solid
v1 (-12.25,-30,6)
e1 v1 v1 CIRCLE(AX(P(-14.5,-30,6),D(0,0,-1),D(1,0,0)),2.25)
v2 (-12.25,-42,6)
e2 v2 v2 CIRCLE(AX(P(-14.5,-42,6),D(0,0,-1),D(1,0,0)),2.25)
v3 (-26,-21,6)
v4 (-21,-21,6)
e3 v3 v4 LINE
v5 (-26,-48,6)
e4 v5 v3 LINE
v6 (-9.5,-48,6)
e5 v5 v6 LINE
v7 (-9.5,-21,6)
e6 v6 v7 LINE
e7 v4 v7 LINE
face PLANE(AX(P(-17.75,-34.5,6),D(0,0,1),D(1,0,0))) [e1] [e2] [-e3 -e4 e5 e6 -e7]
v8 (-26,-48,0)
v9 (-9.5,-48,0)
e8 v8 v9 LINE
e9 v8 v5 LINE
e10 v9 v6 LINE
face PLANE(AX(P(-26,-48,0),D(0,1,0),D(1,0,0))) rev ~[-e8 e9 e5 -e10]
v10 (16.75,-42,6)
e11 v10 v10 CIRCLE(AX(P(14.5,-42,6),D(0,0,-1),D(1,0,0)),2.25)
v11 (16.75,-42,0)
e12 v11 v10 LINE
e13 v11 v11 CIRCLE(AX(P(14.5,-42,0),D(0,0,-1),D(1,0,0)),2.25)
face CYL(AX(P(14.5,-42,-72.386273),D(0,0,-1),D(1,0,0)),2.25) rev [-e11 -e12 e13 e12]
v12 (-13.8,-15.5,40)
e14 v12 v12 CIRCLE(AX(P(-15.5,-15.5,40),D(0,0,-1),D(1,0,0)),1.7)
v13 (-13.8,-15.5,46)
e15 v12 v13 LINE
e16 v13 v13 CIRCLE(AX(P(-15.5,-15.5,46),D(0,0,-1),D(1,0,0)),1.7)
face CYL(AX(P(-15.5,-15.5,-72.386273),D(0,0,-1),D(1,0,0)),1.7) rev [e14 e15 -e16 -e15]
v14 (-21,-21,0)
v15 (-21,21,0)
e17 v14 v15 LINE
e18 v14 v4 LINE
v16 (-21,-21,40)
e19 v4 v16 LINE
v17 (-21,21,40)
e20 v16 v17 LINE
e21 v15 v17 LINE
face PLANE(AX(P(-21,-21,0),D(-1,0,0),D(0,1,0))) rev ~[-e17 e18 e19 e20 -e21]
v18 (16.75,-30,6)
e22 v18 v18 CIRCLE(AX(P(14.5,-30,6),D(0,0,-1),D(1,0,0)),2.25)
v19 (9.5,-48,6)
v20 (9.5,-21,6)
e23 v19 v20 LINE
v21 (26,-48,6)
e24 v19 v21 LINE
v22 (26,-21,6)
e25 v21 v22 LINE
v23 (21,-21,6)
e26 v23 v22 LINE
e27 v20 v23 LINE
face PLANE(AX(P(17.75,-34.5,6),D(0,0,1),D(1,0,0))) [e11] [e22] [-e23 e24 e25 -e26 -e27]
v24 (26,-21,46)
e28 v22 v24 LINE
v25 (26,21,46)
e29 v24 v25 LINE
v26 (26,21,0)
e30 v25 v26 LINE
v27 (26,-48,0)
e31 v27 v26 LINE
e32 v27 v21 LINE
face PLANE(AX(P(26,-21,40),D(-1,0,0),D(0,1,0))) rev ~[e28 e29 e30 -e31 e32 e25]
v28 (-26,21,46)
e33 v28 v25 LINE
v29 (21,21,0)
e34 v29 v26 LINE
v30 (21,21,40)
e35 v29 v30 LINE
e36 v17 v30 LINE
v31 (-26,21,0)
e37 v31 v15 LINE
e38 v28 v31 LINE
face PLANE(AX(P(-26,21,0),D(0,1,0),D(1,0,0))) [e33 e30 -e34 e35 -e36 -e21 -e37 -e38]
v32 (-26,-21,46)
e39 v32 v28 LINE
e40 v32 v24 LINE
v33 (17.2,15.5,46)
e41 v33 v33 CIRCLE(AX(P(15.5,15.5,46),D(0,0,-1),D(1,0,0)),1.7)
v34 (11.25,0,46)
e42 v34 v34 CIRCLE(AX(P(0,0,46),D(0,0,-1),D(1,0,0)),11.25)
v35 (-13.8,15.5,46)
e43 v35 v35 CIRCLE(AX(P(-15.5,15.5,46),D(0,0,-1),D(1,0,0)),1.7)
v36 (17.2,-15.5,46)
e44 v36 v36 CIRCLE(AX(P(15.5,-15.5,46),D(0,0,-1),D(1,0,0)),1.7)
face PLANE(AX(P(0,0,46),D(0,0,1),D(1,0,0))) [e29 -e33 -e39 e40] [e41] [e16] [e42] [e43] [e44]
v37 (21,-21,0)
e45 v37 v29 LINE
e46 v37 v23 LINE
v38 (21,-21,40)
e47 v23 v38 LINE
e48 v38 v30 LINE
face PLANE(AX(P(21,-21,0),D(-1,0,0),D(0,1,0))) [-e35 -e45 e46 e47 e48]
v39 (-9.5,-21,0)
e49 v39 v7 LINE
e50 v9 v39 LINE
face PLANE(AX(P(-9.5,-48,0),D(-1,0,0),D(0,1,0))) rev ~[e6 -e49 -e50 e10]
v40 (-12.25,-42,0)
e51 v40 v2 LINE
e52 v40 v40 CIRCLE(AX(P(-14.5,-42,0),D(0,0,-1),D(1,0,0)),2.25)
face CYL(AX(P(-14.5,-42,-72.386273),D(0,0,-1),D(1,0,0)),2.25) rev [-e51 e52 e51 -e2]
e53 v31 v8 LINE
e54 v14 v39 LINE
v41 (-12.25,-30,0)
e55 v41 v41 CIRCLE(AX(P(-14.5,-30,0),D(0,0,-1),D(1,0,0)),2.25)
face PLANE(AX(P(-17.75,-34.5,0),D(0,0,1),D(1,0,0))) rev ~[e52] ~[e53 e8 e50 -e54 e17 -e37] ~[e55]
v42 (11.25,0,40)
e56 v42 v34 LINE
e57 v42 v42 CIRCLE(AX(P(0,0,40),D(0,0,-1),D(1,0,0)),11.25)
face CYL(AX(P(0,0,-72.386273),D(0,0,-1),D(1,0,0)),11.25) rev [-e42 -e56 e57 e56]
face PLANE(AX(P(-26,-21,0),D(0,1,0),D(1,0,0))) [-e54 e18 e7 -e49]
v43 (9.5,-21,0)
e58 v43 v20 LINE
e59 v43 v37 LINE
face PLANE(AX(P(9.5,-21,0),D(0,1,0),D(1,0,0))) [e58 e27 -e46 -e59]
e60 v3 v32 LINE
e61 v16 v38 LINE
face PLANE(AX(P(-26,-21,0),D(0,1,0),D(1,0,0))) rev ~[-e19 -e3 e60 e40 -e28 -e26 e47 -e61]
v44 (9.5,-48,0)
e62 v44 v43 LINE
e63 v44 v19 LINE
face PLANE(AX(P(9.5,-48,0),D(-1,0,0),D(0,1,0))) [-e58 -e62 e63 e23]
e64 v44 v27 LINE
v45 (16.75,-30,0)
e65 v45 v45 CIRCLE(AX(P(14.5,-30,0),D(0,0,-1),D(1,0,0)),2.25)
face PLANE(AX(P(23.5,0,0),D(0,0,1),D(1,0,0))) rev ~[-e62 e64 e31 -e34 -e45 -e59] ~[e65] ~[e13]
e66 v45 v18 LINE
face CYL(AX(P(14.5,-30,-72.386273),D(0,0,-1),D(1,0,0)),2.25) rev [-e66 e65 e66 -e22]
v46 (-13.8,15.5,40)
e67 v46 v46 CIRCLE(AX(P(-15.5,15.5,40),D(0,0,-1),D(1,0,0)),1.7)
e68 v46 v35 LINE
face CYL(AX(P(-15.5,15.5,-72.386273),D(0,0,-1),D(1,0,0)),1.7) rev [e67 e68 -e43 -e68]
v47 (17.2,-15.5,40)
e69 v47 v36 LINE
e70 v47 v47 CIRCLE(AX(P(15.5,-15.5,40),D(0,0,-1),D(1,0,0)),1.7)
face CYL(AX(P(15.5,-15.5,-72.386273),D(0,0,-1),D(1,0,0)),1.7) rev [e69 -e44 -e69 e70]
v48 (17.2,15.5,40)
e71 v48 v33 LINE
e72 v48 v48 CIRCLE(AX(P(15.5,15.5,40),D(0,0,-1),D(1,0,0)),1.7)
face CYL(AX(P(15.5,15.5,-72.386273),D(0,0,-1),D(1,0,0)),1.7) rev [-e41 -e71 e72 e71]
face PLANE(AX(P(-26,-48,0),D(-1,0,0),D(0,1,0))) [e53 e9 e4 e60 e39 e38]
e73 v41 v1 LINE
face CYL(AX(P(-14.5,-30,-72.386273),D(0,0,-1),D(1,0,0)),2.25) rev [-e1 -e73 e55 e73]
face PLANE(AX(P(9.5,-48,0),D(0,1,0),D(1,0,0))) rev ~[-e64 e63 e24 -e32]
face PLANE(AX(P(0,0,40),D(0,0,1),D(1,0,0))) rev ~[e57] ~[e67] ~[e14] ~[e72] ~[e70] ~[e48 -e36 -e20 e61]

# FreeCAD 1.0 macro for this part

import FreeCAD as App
import Part
import Sketcher

V = App.Vector
Q = App.Units.Quantity


def add_polygon(sketch, points):
    """Adds a closed chain of lines whose ends are joined by coincident constraints."""
    first, n = sketch.GeometryCount, len(points)
    for a, b in zip(points, points[1:] + points[:1]):
        sketch.addGeometry(Part.LineSegment(App.Vector(*a, 0), App.Vector(*b, 0)), False)
    for i in range(n):
        sketch.addConstraint(Sketcher.Constraint("Coincident", first + i, 2, first + (i + 1) % n, 1))

doc = App.newDocument("Part")
params = doc.addObject("Spreadsheet::Sheet", "Params")
for row, (alias, value) in enumerate([
    ("sketch1_width", "52 mm"),
    ("sketch1_height", "42 mm"),
    ("pad1_length", "6 mm"),
    ("sketch2_width", "5 mm"),
    ("sketch2_height", "42 mm"),
    ("pad2_length", "40 mm"),
    ("sketch3_height", "27 mm"),
    ("sketch3_width", "16.5 mm"),
    ("pad3_length", "6 mm"),
    ("sketch4_diameter", "22.5 mm"),
    ("sketch4_diameter2", "3.4 mm"),
    ("sketch5_diameter", "4.5 mm"),
], start=1):
    params.set(f"A{row}", alias)
    params.set(f"B{row}", "=" + value)
    params.setAlias(f"B{row}", alias)

body = doc.addObject("PartDesign::Body", "Body")

# Sketch on XY plane
sketch1 = body.newObject("Sketcher::SketchObject", "Sketch")
sketch1.AttachmentSupport = (doc.getObject("XY_Plane"), [""])
sketch1.MapMode = "FlatFace"
sketch1.AttachmentOffset = App.Placement(V(0, 0, 40), App.Rotation())
add_polygon(sketch1, [(-26, 21), (-26, -21), (26, -21), (26, 21)])  # lines 0-3
sketch1.addConstraint(Sketcher.Constraint("Vertical", 0))
sketch1.addConstraint(Sketcher.Constraint("Horizontal", 1))
sketch1.addConstraint(Sketcher.Constraint("Vertical", 2))
sketch1.addConstraint(Sketcher.Constraint("Horizontal", 3))
sketch1.addConstraint(Sketcher.Constraint("Symmetric", 0, 2, 2, 2, -1, 1))
sketch1.addConstraint(Sketcher.Constraint("DistanceX", 1, 1, 1, 2, Q("52 mm")))
sketch1.addConstraint(Sketcher.Constraint("DistanceY", 0, 2, 0, 1, Q("42 mm")))
sketch1.setExpression("Constraints[9]", "Params.sketch1_width")
sketch1.setExpression("Constraints[10]", "Params.sketch1_height")
pad1 = body.newObject("PartDesign::Pad", "Pad")
pad1.Profile = sketch1
pad1.setExpression("Length", "Params.pad1_length")

# Sketch on XY plane
sketch2 = body.newObject("Sketcher::SketchObject", "Sketch001")
sketch2.AttachmentSupport = (doc.getObject("XY_Plane"), [""])
sketch2.MapMode = "FlatFace"
add_polygon(sketch2, [(-26, 21), (-26, -21), (-21, -21), (-21, 21)])  # lines 0-3
add_polygon(sketch2, [(21, 21), (21, -21), (26, -21), (26, 21)])  # lines 4-7
sketch2.addConstraint(Sketcher.Constraint("Vertical", 0))
sketch2.addConstraint(Sketcher.Constraint("Horizontal", 1))
sketch2.addConstraint(Sketcher.Constraint("Vertical", 2))
sketch2.addConstraint(Sketcher.Constraint("Horizontal", 3))
sketch2.addConstraint(Sketcher.Constraint("Vertical", 4))
sketch2.addConstraint(Sketcher.Constraint("Horizontal", 5))
sketch2.addConstraint(Sketcher.Constraint("Vertical", 6))
sketch2.addConstraint(Sketcher.Constraint("Horizontal", 7))
sketch2.addConstraint(Sketcher.Constraint("Symmetric", 2, 2, 4, 2, -1, 1))
sketch2.addConstraint(Sketcher.Constraint("Symmetric", 0, 2, 6, 2, -1, 1))
sketch2.addConstraint(Sketcher.Constraint("Horizontal", 1, 2, 4, 2))
sketch2.addConstraint(Sketcher.Constraint("DistanceX", 1, 1, 1, 2, Q("5 mm")))
sketch2.addConstraint(Sketcher.Constraint("DistanceY", 0, 2, 0, 1, Q("42 mm")))
sketch2.addConstraint(Sketcher.Constraint("DistanceX", 0, 2, -1, 1, Q("26 mm")))
sketch2.setExpression("Constraints[19]", "Params.sketch2_width")
sketch2.setExpression("Constraints[20]", "Params.sketch2_height")
pad2 = body.newObject("PartDesign::Pad", "Pad001")
pad2.Profile = sketch2
pad2.setExpression("Length", "Params.pad2_length")

# Sketch on XY plane
sketch3 = body.newObject("Sketcher::SketchObject", "Sketch002")
sketch3.AttachmentSupport = (doc.getObject("XY_Plane"), [""])
sketch3.MapMode = "FlatFace"
add_polygon(sketch3, [(-26, -21), (-26, -48), (-10, -48), (-10, -21)])  # lines 0-3
add_polygon(sketch3, [(10, -21), (10, -48), (26, -48), (26, -21)])  # lines 4-7
sketch3.addConstraint(Sketcher.Constraint("Vertical", 0))
sketch3.addConstraint(Sketcher.Constraint("Horizontal", 1))
sketch3.addConstraint(Sketcher.Constraint("Vertical", 2))
sketch3.addConstraint(Sketcher.Constraint("Horizontal", 3))
sketch3.addConstraint(Sketcher.Constraint("Vertical", 4))
sketch3.addConstraint(Sketcher.Constraint("Horizontal", 5))
sketch3.addConstraint(Sketcher.Constraint("Vertical", 6))
sketch3.addConstraint(Sketcher.Constraint("Horizontal", 7))
sketch3.addConstraint(Sketcher.Constraint("Symmetric", 1, 2, 4, 2, -2))
sketch3.addConstraint(Sketcher.Constraint("Symmetric", 3, 2, 6, 2, -2))
sketch3.addConstraint(Sketcher.Constraint("DistanceY", 0, 2, 0, 1, Q("27 mm")))
sketch3.addConstraint(Sketcher.Constraint("DistanceX", 1, 1, 1, 2, Q("16.5 mm")))
sketch3.addConstraint(Sketcher.Constraint("DistanceX", 0, 2, -1, 1, Q("26 mm")))
sketch3.addConstraint(Sketcher.Constraint("DistanceY", 0, 2, -1, 1, Q("48 mm")))
sketch3.setExpression("Constraints[18]", "Params.sketch3_height")
sketch3.setExpression("Constraints[19]", "Params.sketch3_width")
pad3 = body.newObject("PartDesign::Pad", "Pad002")
pad3.Profile = sketch3
pad3.setExpression("Length", "Params.pad3_length")

# Sketch on XY plane
sketch4 = body.newObject("Sketcher::SketchObject", "Sketch003")
sketch4.AttachmentSupport = (doc.getObject("XY_Plane"), [""])
sketch4.MapMode = "FlatFace"
sketch4.addGeometry(Part.Circle(V(0, 0, 0), V(0, 0, 1), 11.2), False)
sketch4.addGeometry(Part.Circle(V(-15.5, -15.5, 0), V(0, 0, 1), 1.7), False)
sketch4.addGeometry(Part.Circle(V(-15.5, 15.5, 0), V(0, 0, 1), 1.7), False)
sketch4.addGeometry(Part.Circle(V(15.5, -15.5, 0), V(0, 0, 1), 1.7), False)
sketch4.addGeometry(Part.Circle(V(15.5, 15.5, 0), V(0, 0, 1), 1.7), False)
sketch4.addConstraint(Sketcher.Constraint("Coincident", 0, 3, -1, 1))
sketch4.addConstraint(Sketcher.Constraint("Equal", 1, 2))
sketch4.addConstraint(Sketcher.Constraint("Equal", 2, 3))
sketch4.addConstraint(Sketcher.Constraint("Equal", 3, 4))
sketch4.addConstraint(Sketcher.Constraint("Symmetric", 2, 3, 3, 3, -1, 1))
sketch4.addConstraint(Sketcher.Constraint("Symmetric", 1, 3, 4, 3, -1, 1))
sketch4.addConstraint(Sketcher.Constraint("Symmetric", 1, 3, 3, 3, -2))
sketch4.addConstraint(Sketcher.Constraint("Diameter", 0, Q("22.5 mm")))
sketch4.addConstraint(Sketcher.Constraint("Diameter", 1, Q("3.4 mm")))
sketch4.addConstraint(Sketcher.Constraint("DistanceY", 1, 3, 2, 3, Q("31 mm")))
sketch4.addConstraint(Sketcher.Constraint("DistanceX", 1, 3, 3, 3, Q("31 mm")))
sketch4.setExpression("Constraints[7]", "Params.sketch4_diameter")
sketch4.setExpression("Constraints[8]", "Params.sketch4_diameter2")
pocket1 = body.newObject("PartDesign::Pocket", "Pocket")
pocket1.Profile = sketch4
pocket1.Type = "ThroughAll"
pocket1.Midplane = True

# Sketch on XY plane
sketch5 = body.newObject("Sketcher::SketchObject", "Sketch004")
sketch5.AttachmentSupport = (doc.getObject("XY_Plane"), [""])
sketch5.MapMode = "FlatFace"
sketch5.addGeometry(Part.Circle(V(-14.5, -30, 0), V(0, 0, 1), 2.2), False)
sketch5.addGeometry(Part.Circle(V(-14.5, -42, 0), V(0, 0, 1), 2.2), False)
sketch5.addGeometry(Part.Circle(V(14.5, -30, 0), V(0, 0, 1), 2.2), False)
sketch5.addGeometry(Part.Circle(V(14.5, -42, 0), V(0, 0, 1), 2.2), False)
sketch5.addConstraint(Sketcher.Constraint("Equal", 0, 1))
sketch5.addConstraint(Sketcher.Constraint("Equal", 1, 2))
sketch5.addConstraint(Sketcher.Constraint("Equal", 2, 3))
sketch5.addConstraint(Sketcher.Constraint("Symmetric", 0, 3, 2, 3, -2))
sketch5.addConstraint(Sketcher.Constraint("Symmetric", 1, 3, 3, 3, -2))
sketch5.addConstraint(Sketcher.Constraint("Vertical", 0, 3, 1, 3))
sketch5.addConstraint(Sketcher.Constraint("Diameter", 0, Q("4.5 mm")))
sketch5.addConstraint(Sketcher.Constraint("DistanceY", 0, 3, -1, 1, Q("30 mm")))
sketch5.addConstraint(Sketcher.Constraint("DistanceY", 1, 3, -1, 1, Q("42 mm")))
sketch5.addConstraint(Sketcher.Constraint("DistanceX", 0, 3, 2, 3, Q("29 mm")))
sketch5.setExpression("Constraints[6]", "Params.sketch5_diameter")
pocket2 = body.newObject("PartDesign::Pocket", "Pocket001")
pocket2.Profile = sketch5
pocket2.Type = "ThroughAll"
pocket2.Midplane = True

doc.recompute()
